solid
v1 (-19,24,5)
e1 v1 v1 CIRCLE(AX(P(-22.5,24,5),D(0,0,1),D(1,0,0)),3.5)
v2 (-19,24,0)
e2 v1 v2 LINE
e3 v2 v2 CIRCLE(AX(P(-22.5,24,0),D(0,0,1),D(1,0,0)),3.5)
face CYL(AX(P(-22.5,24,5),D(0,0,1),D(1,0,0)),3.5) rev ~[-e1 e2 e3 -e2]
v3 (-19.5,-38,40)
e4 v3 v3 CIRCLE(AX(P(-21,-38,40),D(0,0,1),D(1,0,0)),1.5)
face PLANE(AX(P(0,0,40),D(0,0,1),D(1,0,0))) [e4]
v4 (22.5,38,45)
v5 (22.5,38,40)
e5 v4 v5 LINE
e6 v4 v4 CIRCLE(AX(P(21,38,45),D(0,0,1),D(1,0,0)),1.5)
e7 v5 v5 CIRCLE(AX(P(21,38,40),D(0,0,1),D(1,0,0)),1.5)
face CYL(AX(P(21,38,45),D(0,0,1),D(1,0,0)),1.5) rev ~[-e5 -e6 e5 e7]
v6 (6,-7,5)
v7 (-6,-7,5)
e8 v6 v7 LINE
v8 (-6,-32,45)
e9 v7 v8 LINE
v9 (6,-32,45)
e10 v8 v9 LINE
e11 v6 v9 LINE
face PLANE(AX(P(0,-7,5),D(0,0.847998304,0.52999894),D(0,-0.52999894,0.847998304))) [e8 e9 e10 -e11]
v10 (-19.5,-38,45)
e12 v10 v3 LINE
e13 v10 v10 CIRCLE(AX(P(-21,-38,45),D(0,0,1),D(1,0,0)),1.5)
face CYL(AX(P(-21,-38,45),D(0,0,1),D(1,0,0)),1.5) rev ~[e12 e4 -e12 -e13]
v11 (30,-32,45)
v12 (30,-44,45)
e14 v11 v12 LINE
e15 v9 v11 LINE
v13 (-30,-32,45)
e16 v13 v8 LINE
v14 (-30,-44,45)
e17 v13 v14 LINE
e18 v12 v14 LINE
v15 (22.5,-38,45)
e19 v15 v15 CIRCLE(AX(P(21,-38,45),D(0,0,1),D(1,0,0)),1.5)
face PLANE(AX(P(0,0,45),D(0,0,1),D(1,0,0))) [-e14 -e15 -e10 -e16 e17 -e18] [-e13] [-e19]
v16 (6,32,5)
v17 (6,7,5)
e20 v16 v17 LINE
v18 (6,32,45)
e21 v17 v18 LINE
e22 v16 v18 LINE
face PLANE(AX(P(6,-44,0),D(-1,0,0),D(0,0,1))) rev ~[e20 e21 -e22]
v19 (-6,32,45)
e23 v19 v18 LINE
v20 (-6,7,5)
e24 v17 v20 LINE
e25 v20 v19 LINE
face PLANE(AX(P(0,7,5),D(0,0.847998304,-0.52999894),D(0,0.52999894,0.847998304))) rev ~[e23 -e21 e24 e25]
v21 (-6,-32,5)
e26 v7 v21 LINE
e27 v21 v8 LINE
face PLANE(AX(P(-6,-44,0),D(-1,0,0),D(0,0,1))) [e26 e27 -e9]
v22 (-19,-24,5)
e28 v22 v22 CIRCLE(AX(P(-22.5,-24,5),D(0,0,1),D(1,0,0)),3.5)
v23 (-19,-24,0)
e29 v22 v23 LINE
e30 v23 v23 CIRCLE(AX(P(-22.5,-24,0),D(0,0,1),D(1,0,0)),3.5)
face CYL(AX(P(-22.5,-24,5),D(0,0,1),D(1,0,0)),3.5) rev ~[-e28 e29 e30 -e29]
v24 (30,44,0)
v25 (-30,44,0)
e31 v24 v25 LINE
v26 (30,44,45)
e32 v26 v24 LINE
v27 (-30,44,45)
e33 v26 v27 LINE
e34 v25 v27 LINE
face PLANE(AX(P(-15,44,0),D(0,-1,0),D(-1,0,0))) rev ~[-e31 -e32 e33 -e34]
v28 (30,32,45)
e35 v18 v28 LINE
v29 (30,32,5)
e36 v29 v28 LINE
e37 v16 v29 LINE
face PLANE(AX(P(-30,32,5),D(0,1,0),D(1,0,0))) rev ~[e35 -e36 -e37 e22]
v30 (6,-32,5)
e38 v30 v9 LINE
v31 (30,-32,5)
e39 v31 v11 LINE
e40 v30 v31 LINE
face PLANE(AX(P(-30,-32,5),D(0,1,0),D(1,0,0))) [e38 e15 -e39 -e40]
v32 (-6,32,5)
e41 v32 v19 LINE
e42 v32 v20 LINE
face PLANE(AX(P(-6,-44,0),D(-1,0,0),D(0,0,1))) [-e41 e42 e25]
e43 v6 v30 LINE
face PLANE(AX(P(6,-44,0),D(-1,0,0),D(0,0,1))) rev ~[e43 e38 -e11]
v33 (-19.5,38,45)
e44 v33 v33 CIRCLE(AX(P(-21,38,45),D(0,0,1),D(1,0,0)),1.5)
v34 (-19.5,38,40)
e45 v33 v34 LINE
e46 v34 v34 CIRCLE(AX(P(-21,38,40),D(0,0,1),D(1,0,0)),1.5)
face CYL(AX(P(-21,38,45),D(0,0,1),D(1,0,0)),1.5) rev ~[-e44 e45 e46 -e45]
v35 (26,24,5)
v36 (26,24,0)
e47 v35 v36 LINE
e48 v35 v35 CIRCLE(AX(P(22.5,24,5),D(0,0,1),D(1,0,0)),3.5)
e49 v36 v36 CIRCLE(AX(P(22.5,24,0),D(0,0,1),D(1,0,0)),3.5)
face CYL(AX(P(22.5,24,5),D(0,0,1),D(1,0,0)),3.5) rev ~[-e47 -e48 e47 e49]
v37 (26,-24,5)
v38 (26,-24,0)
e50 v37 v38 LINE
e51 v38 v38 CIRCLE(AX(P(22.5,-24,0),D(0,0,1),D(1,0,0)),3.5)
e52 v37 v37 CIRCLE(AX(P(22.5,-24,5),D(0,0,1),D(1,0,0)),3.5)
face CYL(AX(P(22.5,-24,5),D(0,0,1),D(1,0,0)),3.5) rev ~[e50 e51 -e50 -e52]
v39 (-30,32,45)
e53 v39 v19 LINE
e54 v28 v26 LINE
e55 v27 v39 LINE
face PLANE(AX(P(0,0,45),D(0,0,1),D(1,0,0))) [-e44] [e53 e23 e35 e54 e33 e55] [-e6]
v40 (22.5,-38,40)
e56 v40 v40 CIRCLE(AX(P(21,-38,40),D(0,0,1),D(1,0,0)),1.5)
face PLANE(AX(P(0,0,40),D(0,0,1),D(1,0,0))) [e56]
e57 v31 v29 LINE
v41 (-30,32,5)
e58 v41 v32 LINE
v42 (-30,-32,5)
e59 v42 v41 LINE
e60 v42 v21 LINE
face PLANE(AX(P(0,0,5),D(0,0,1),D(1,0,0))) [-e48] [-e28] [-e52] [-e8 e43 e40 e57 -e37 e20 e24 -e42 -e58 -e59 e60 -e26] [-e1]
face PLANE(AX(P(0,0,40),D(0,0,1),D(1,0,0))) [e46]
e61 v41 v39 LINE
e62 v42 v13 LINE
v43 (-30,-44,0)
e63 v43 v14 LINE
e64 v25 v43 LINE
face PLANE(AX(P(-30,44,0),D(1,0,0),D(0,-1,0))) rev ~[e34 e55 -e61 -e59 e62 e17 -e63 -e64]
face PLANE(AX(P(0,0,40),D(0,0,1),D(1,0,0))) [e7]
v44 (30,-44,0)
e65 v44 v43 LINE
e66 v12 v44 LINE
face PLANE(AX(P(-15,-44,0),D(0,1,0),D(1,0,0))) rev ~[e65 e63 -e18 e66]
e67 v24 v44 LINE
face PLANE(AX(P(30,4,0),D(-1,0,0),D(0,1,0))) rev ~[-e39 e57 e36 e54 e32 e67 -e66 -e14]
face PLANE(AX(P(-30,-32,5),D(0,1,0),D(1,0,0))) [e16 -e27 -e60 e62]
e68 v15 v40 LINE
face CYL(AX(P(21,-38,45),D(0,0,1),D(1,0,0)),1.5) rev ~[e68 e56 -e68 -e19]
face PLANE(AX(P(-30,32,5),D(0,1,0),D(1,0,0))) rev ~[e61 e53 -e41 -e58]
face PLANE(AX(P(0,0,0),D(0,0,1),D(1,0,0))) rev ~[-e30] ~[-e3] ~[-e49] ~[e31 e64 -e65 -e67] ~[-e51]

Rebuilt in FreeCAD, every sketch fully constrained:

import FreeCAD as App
import Part
import Sketcher
from FreeCAD import Vector


def add_polygon(sketch, points):
    """Adds a closed chain of lines whose ends are joined by coincident constraints."""
    first, n = sketch.GeometryCount, len(points)
    for a, b in zip(points, points[1:] + points[:1]):
        sketch.addGeometry(Part.LineSegment(App.Vector(*a, 0), App.Vector(*b, 0)), False)
    for i in range(n):
        sketch.addConstraint(Sketcher.Constraint("Coincident", first + i, 2, first + (i + 1) % n, 1))

doc = App.newDocument("Part")
body = doc.addObject("PartDesign::Body", "Body")

# Sketch on XY plane
sketch1 = doc.addObject("Sketcher::SketchObject", "Sketch")
body.addObject(sketch1)
sketch1.AttachmentSupport = (doc.XY_Plane, [""])
sketch1.MapMode = "FlatFace"
add_polygon(sketch1, [(-30, 44), (-30, -44), (30, -44), (30, 44)])  # lines 0-3
sketch1.addGeometry(Part.Circle(Vector(-22.5, 24, 0), Vector(0, 0, 1), 3), False)  # 4
sketch1.addGeometry(Part.Circle(Vector(22.5, -24, 0), Vector(0, 0, 1), 3), False)  # 5
sketch1.addGeometry(Part.Circle(Vector(22.5, 24, 0), Vector(0, 0, 1), 3), False)  # 6
sketch1.addGeometry(Part.Circle(Vector(-22.5, -24, 0), Vector(0, 0, 1), 3), False)  # 7
sketch1.addConstraint(Sketcher.Constraint("Vertical", 0))
sketch1.addConstraint(Sketcher.Constraint("Horizontal", 1))
sketch1.addConstraint(Sketcher.Constraint("Vertical", 2))
sketch1.addConstraint(Sketcher.Constraint("Horizontal", 3))
sketch1.addConstraint(Sketcher.Constraint("Equal", 4, 5))
sketch1.addConstraint(Sketcher.Constraint("Equal", 5, 6))
sketch1.addConstraint(Sketcher.Constraint("Equal", 6, 7))
sketch1.addConstraint(Sketcher.Constraint("Symmetric", 4, 3, 5, 3, -1, 1))
sketch1.addConstraint(Sketcher.Constraint("Symmetric", 6, 3, 7, 3, -1, 1))
sketch1.addConstraint(Sketcher.Constraint("Symmetric", 0, 2, 2, 2, -1, 1))
sketch1.addConstraint(Sketcher.Constraint("Symmetric", 4, 3, 6, 3, -2))
sketch1.addConstraint(Sketcher.Constraint("Diameter", 4, 6.0))
sketch1.addConstraint(Sketcher.Constraint("DistanceX", 1, 1, 1, 2, 60.0))
sketch1.addConstraint(Sketcher.Constraint("DistanceY", 0, 2, 0, 1, 88.0))
sketch1.addConstraint(Sketcher.Constraint("DistanceY", -1, 1, 4, 3, 24.0))
sketch1.addConstraint(Sketcher.Constraint("DistanceX", 4, 3, 5, 3, 45.0))
pad1 = doc.addObject("PartDesign::Pad", "Pad")
body.addObject(pad1)
pad1.Profile = sketch1
pad1.Length = 5

# Sketch on XY plane
sketch2 = doc.addObject("Sketcher::SketchObject", "Sketch001")
body.addObject(sketch2)
sketch2.AttachmentSupport = (doc.XY_Plane, [""])
sketch2.MapMode = "FlatFace"
sketch2.AttachmentOffset = App.Placement(Vector(0, 0, 5), App.Rotation())
add_polygon(sketch2, [(30, 32), (30, 44), (-30, 44), (-30, 32)])  # lines 0-3
add_polygon(sketch2, [(30, -32), (-30, -32), (-30, -44), (30, -44)])  # lines 4-7
sketch2.addConstraint(Sketcher.Constraint("Vertical", 0))
sketch2.addConstraint(Sketcher.Constraint("Horizontal", 1))
sketch2.addConstraint(Sketcher.Constraint("Vertical", 2))
sketch2.addConstraint(Sketcher.Constraint("Horizontal", 3))
sketch2.addConstraint(Sketcher.Constraint("Horizontal", 4))
sketch2.addConstraint(Sketcher.Constraint("Vertical", 5))
sketch2.addConstraint(Sketcher.Constraint("Horizontal", 6))
sketch2.addConstraint(Sketcher.Constraint("Vertical", 7))
sketch2.addConstraint(Sketcher.Constraint("Symmetric", 3, 2, 4, 2, -1, 1))
sketch2.addConstraint(Sketcher.Constraint("Symmetric", 1, 2, 6, 2, -1, 1))
sketch2.addConstraint(Sketcher.Constraint("Vertical", 2, 2, 4, 2))
sketch2.addConstraint(Sketcher.Constraint("DistanceY", 0, 1, 0, 2, 12.0))
sketch2.addConstraint(Sketcher.Constraint("DistanceX", 1, 2, 1, 1, 60.0))
sketch2.addConstraint(Sketcher.Constraint("DistanceY", -1, 1, 0, 2, 44.0))
pad2 = doc.addObject("PartDesign::Pad", "Pad001")
body.addObject(pad2)
pad2.Profile = sketch2
pad2.Length = 40

# Sketch on XY plane
sketch3 = doc.addObject("Sketcher::SketchObject", "Sketch002")
body.addObject(sketch3)
sketch3.AttachmentSupport = (doc.XY_Plane, [""])
sketch3.MapMode = "FlatFace"
sketch3.AttachmentOffset = App.Placement(Vector(0, 0, 45), App.Rotation())
sketch3.addGeometry(Part.Circle(Vector(21, 38, 0), Vector(0, 0, 1), 1.5), False)
sketch3.addGeometry(Part.Circle(Vector(-21, 38, 0), Vector(0, 0, 1), 1.5), False)
sketch3.addGeometry(Part.Circle(Vector(21, -38, 0), Vector(0, 0, 1), 1.5), False)
sketch3.addGeometry(Part.Circle(Vector(-21, -38, 0), Vector(0, 0, 1), 1.5), False)
sketch3.addConstraint(Sketcher.Constraint("Equal", 0, 1))
sketch3.addConstraint(Sketcher.Constraint("Equal", 1, 2))
sketch3.addConstraint(Sketcher.Constraint("Equal", 2, 3))
sketch3.addConstraint(Sketcher.Constraint("Symmetric", 1, 3, 2, 3, -1, 1))
sketch3.addConstraint(Sketcher.Constraint("Symmetric", 0, 3, 3, 3, -1, 1))
sketch3.addConstraint(Sketcher.Constraint("Symmetric", 0, 3, 1, 3, -2))
sketch3.addConstraint(Sketcher.Constraint("Diameter", 0, 3.0))
sketch3.addConstraint(Sketcher.Constraint("DistanceX", 1, 3, 0, 3, 42.0))
sketch3.addConstraint(Sketcher.Constraint("DistanceY", -1, 1, 0, 3, 38.0))
pocket1 = doc.addObject("PartDesign::Pocket", "Pocket")
body.addObject(pocket1)
pocket1.Profile = sketch3
pocket1.Length = 5

# Sketch on XY plane
sketch4 = doc.addObject("Sketcher::SketchObject", "Sketch003")
body.addObject(sketch4)
sketch4.AttachmentSupport = (doc.XY_Plane, [""])
sketch4.MapMode = "FlatFace"
sketch4.AttachmentOffset = App.Placement(Vector(0, 0, 5), App.Rotation())
sketch4.addGeometry(Part.Circle(Vector(22.5, 24, 0), Vector(0, 0, 1), 3.5), False)
sketch4.addGeometry(Part.Circle(Vector(22.5, -24, 0), Vector(0, 0, 1), 3.5), False)
sketch4.addGeometry(Part.Circle(Vector(-22.5, 24, 0), Vector(0, 0, 1), 3.5), False)
sketch4.addGeometry(Part.Circle(Vector(-22.5, -24, 0), Vector(0, 0, 1), 3.5), False)
sketch4.addConstraint(Sketcher.Constraint("Equal", 0, 1))
sketch4.addConstraint(Sketcher.Constraint("Equal", 1, 2))
sketch4.addConstraint(Sketcher.Constraint("Equal", 2, 3))
sketch4.addConstraint(Sketcher.Constraint("Symmetric", 1, 3, 2, 3, -1, 1))
sketch4.addConstraint(Sketcher.Constraint("Symmetric", 0, 3, 3, 3, -1, 1))
sketch4.addConstraint(Sketcher.Constraint("Symmetric", 0, 3, 2, 3, -2))
sketch4.addConstraint(Sketcher.Constraint("Diameter", 0, 7.0))
sketch4.addConstraint(Sketcher.Constraint("DistanceY", -1, 1, 0, 3, 24.0))
sketch4.addConstraint(Sketcher.Constraint("DistanceX", 2, 3, 0, 3, 45.0))
pocket2 = doc.addObject("PartDesign::Pocket", "Pocket001")
body.addObject(pocket2)
pocket2.Profile = sketch4
pocket2.Length = 5

# Sketch on YZ plane
sketch5 = doc.addObject("Sketcher::SketchObject", "Sketch004")
body.addObject(sketch5)
sketch5.AttachmentSupport = (doc.YZ_Plane, [""])
sketch5.MapMode = "FlatFace"
add_polygon(sketch5, [(32, 45), (32, 5), (7, 5)])  # lines 0-2
add_polygon(sketch5, [(-32, 45), (-7, 5), (-32, 5)])  # lines 3-5
sketch5.addConstraint(Sketcher.Constraint("Vertical", 0))
sketch5.addConstraint(Sketcher.Constraint("Horizontal", 1))
sketch5.addConstraint(Sketcher.Constraint("Horizontal", 4))
sketch5.addConstraint(Sketcher.Constraint("Vertical", 5))
sketch5.addConstraint(Sketcher.Constraint("Symmetric", 1, 2, 3, 2, -2))
sketch5.addConstraint(Sketcher.Constraint("Symmetric", 2, 2, 5, 2, -2))
sketch5.addConstraint(Sketcher.Constraint("DistanceX", 1, 2, 1, 1, 25.0))
sketch5.addConstraint(Sketcher.Constraint("DistanceY", 0, 2, 0, 1, 40.0))
sketch5.addConstraint(Sketcher.Constraint("DistanceX", -1, 1, 0, 2, 32.0))
sketch5.addConstraint(Sketcher.Constraint("DistanceY", -1, 1, 0, 2, 5.0))
pad3 = doc.addObject("PartDesign::Pad", "Pad002")
body.addObject(pad3)
pad3.Profile = sketch5
pad3.Length = 12
pad3.Midplane = True

doc.recompute()
